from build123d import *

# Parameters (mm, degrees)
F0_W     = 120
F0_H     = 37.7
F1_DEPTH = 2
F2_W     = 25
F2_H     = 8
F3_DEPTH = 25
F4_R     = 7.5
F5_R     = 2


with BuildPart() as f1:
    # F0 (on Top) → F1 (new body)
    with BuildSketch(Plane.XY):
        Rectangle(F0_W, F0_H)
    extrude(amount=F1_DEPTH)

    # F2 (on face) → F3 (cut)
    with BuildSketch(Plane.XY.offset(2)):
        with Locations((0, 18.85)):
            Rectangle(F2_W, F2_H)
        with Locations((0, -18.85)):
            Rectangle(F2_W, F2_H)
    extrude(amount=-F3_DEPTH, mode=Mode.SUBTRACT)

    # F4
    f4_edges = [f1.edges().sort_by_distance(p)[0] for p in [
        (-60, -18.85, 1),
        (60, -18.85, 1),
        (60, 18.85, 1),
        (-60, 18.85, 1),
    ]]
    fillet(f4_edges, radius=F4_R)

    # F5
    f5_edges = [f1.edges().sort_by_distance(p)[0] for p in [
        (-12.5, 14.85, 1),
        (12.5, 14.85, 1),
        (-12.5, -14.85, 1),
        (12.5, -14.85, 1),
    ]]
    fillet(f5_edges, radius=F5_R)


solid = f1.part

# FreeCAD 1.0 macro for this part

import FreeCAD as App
import Part
import Sketcher


def edges_at(feature, points):
    """Names of the edges that pass closest to the given points."""
    edges = feature.Shape.Edges
    near = lambda p: min(range(len(edges)), key=lambda i: edges[i].distToShape(Part.Vertex(*p))[0])
    return sorted({f"Edge{near(p) + 1}" for p in points})

doc = App.newDocument("Part")
body = doc.addObject("PartDesign::Body", "Body")

sketch1 = body.newObject("Sketcher::SketchObject", "Sketch")
sketch1.AttachmentSupport = (doc.getObject("XY_Plane"), [""])
sketch1.MapMode = "FlatFace"
sketch1.addGeometry([
    Part.LineSegment(App.Vector(-60, 19, 0), App.Vector(-60, -19, 0)),
    Part.LineSegment(App.Vector(-60, -19, 0), App.Vector(60, -19, 0)),
    Part.LineSegment(App.Vector(60, -19, 0), App.Vector(60, 19, 0)),
    Part.LineSegment(App.Vector(60, 19, 0), App.Vector(-60, 19, 0)),
], False)
sketch1.addConstraint([
    Sketcher.Constraint("Coincident", 0, 2, 1, 1),
    Sketcher.Constraint("Coincident", 1, 2, 2, 1),
    Sketcher.Constraint("Coincident", 2, 2, 3, 1),
    Sketcher.Constraint("Coincident", 3, 2, 0, 1),
    Sketcher.Constraint("Vertical", 0),
    Sketcher.Constraint("Horizontal", 1),
    Sketcher.Constraint("Vertical", 2),
    Sketcher.Constraint("Horizontal", 3),
    Sketcher.Constraint("Symmetric", 0, 2, 2, 2, -1, 1),
    Sketcher.Constraint("DistanceX", 1, 1, 1, 2, 120.0),
    Sketcher.Constraint("DistanceY", 0, 2, 0, 1, 37.7),
])
pad1 = body.newObject("PartDesign::Pad", "Pad")
pad1.Profile = sketch1
pad1.Length = 2

sketch2 = body.newObject("Sketcher::SketchObject", "Sketch001")
sketch2.AttachmentSupport = (doc.getObject("XY_Plane"), [""])
sketch2.MapMode = "FlatFace"
sketch2.AttachmentOffset = App.Placement(App.Vector(0, 0, 2), App.Rotation())
sketch2.addGeometry([
    Part.LineSegment(App.Vector(-12, 23, 0), App.Vector(-12, 15, 0)),
    Part.LineSegment(App.Vector(-12, 15, 0), App.Vector(12, 15, 0)),
    Part.LineSegment(App.Vector(12, 15, 0), App.Vector(12, 23, 0)),
    Part.LineSegment(App.Vector(12, 23, 0), App.Vector(-12, 23, 0)),
    Part.LineSegment(App.Vector(-12, -15, 0), App.Vector(-12, -23, 0)),
    Part.LineSegment(App.Vector(-12, -23, 0), App.Vector(12, -23, 0)),
    Part.LineSegment(App.Vector(12, -23, 0), App.Vector(12, -15, 0)),
    Part.LineSegment(App.Vector(12, -15, 0), App.Vector(-12, -15, 0)),
], False)
sketch2.addConstraint([
    Sketcher.Constraint("Coincident", 0, 2, 1, 1),
    Sketcher.Constraint("Coincident", 1, 2, 2, 1),
    Sketcher.Constraint("Coincident", 2, 2, 3, 1),
    Sketcher.Constraint("Coincident", 3, 2, 0, 1),
    Sketcher.Constraint("Coincident", 4, 2, 5, 1),
    Sketcher.Constraint("Coincident", 5, 2, 6, 1),
    Sketcher.Constraint("Coincident", 6, 2, 7, 1),
    Sketcher.Constraint("Coincident", 7, 2, 4, 1),
    Sketcher.Constraint("Vertical", 0),
    Sketcher.Constraint("Horizontal", 1),
    Sketcher.Constraint("Vertical", 2),
    Sketcher.Constraint("Horizontal", 3),
    Sketcher.Constraint("Vertical", 4),
    Sketcher.Constraint("Horizontal", 5),
    Sketcher.Constraint("Vertical", 6),
    Sketcher.Constraint("Horizontal", 7),
    Sketcher.Constraint("Symmetric", 2, 2, 4, 2, -1, 1),
    Sketcher.Constraint("Symmetric", 0, 2, 6, 2, -1, 1),
    Sketcher.Constraint("Vertical", 3, 2, 4, 2),
    Sketcher.Constraint("DistanceX", 1, 1, 1, 2, 25.0),
    Sketcher.Constraint("DistanceY", 0, 2, 0, 1, 8.0),
    Sketcher.Constraint("DistanceY", 4, 2, 0, 2, 37.7),
])
pocket1 = body.newObject("PartDesign::Pocket", "Pocket")
pocket1.Profile = sketch2
pocket1.Length = 25
doc.recompute()

fillet = body.newObject("PartDesign::Fillet", "Fillet")
fillet.Base = (pocket1, edges_at(pocket1, [
    (-60, -18.85, 1),
    (60, -18.85, 1),
    (60, 18.85, 1),
    (-60, 18.85, 1),
]))
fillet.Radius = 7.5
doc.recompute()

fillet2 = body.newObject("PartDesign::Fillet", "Fillet001")
fillet2.Base = (fillet, edges_at(fillet, [
    (-12.5, 14.85, 1),
    (12.5, 14.85, 1),
    (-12.5, -14.85, 1),
    (12.5, -14.85, 1),
]))
fillet2.Radius = 2

doc.recompute()
